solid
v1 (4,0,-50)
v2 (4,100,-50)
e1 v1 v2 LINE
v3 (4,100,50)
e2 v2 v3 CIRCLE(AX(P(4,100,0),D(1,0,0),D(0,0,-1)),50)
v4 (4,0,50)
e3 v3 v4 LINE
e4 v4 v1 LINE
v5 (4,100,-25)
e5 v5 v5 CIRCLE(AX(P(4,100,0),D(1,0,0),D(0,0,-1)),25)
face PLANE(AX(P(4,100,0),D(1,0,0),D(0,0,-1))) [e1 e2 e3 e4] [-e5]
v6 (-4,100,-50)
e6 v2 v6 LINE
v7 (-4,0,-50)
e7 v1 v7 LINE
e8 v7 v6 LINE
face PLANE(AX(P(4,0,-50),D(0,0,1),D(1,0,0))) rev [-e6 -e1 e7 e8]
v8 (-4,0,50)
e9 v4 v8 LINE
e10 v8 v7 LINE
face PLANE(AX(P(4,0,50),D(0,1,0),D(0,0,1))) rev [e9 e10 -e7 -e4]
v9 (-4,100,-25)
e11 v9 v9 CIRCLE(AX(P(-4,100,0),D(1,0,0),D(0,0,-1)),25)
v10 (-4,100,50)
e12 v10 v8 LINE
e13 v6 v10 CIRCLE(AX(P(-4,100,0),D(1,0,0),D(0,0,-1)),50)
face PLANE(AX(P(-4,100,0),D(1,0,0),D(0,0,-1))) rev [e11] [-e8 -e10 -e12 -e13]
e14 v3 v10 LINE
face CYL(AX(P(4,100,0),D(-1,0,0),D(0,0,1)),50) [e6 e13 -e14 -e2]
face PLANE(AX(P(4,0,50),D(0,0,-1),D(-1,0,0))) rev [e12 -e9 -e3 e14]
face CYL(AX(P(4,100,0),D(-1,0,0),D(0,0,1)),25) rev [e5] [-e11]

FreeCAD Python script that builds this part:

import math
import FreeCAD as App
import Part
import Sketcher

V = App.Vector

doc = App.newDocument("Part")
body = doc.addObject("PartDesign::Body", "Body")

sketch1 = body.newObject("Sketcher::SketchObject", "Sketch")
sketch1.AttachmentSupport = (doc.getObject("YZ_Plane"), [""])
sketch1.MapMode = "FlatFace"
sketch1.addGeometry(Part.LineSegment(V(0, 50, 0), V(0, -50, 0)), False)
sketch1.addGeometry(Part.LineSegment(V(0, -50, 0), V(100, -50, 0)), False)
sketch1.addGeometry(Part.ArcOfCircle(Part.Circle(V(100, 0, 0), V(0, 0, 1), 50), math.radians(-90), math.radians(90)), False)
sketch1.addGeometry(Part.LineSegment(V(100, 50, 0), V(0, 50, 0)), False)
sketch1.addGeometry(Part.Circle(V(100, 0, 0), V(0, 0, 1), 25), False)
sketch1.addConstraint(Sketcher.Constraint("Coincident", 0, 2, 1, 1))
sketch1.addConstraint(Sketcher.Constraint("Tangent", 1, 2, 2, 1))
sketch1.addConstraint(Sketcher.Constraint("Tangent", 2, 2, 3, 1))
sketch1.addConstraint(Sketcher.Constraint("Coincident", 3, 2, 0, 1))
sketch1.addConstraint(Sketcher.Constraint("Vertical", 0))
sketch1.addConstraint(Sketcher.Constraint("Horizontal", 1))
sketch1.addConstraint(Sketcher.Constraint("Horizontal", 3))
sketch1.addConstraint(Sketcher.Constraint("Coincident", 4, 3, 2, 3))
sketch1.addConstraint(Sketcher.Constraint("Symmetric", 0, 2, 3, 2, -1, 1))
sketch1.addConstraint(Sketcher.Constraint("Equal", 3, 0))
sketch1.addConstraint(Sketcher.Constraint("Diameter", 4, 50.0))
sketch1.addConstraint(Sketcher.Constraint("Radius", 2, 50.0))
pad1 = body.newObject("PartDesign::Pad", "Pad")
pad1.Profile = sketch1
pad1.Length = 8
pad1.Midplane = True

doc.recompute()
